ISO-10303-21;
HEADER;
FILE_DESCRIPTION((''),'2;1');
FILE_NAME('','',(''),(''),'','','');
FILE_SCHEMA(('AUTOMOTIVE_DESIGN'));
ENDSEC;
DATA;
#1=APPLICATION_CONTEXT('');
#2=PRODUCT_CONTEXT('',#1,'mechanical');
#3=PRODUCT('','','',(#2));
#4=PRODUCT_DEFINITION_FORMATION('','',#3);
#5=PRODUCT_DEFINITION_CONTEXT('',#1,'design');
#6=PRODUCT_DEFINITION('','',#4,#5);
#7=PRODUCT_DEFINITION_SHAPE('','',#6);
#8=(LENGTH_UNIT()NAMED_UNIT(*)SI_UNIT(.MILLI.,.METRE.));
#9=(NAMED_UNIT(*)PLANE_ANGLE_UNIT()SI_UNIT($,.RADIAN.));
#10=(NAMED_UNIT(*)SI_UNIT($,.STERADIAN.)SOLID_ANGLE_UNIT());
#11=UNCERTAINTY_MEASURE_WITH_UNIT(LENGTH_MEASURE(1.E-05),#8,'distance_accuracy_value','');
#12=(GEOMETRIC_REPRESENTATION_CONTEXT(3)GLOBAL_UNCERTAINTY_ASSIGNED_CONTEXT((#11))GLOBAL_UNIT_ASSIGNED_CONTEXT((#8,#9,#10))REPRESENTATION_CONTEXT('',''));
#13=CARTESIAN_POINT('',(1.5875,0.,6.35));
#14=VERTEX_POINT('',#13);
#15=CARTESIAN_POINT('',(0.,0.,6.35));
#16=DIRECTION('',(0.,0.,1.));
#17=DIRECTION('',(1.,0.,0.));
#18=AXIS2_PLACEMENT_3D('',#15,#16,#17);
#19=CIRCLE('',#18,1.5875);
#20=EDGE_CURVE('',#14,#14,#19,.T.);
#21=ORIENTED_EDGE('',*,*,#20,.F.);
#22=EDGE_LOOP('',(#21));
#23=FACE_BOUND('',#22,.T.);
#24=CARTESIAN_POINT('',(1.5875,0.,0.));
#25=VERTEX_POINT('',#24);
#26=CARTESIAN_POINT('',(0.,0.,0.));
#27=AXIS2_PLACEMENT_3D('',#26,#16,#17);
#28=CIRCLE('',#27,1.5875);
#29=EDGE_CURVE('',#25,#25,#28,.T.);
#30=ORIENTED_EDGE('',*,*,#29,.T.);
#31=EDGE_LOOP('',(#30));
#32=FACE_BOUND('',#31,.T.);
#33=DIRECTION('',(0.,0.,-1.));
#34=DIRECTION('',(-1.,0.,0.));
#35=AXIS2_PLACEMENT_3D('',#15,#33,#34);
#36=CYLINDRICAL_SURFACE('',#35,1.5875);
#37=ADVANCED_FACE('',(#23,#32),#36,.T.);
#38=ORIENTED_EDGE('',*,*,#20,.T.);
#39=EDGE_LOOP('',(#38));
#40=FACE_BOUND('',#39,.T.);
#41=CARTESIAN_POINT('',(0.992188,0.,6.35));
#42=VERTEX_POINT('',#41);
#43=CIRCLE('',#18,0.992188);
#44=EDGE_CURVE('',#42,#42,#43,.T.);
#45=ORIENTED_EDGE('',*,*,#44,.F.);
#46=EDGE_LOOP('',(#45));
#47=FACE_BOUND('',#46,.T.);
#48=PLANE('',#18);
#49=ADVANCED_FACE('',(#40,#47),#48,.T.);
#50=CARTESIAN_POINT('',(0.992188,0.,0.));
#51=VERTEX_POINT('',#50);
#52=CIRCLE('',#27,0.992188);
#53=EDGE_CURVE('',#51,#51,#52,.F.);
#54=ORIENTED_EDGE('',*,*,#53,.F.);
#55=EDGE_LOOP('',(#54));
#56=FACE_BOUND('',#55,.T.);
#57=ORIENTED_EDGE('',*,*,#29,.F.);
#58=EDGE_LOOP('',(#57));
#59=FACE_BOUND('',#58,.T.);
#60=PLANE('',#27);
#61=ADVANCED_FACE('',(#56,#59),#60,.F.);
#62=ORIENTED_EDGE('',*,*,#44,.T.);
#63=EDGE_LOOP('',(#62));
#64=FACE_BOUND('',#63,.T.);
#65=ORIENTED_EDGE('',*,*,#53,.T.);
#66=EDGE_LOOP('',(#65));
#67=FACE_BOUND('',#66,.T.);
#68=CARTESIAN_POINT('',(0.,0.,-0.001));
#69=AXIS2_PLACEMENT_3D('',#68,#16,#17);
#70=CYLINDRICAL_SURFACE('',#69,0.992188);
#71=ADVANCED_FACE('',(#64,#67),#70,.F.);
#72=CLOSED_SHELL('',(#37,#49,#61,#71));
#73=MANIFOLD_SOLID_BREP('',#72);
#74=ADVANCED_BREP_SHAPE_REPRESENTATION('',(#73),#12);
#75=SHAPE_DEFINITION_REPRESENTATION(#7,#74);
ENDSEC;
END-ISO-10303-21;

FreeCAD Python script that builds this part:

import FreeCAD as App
import Part
import Sketcher
from FreeCAD import Vector
Q = App.Units.Quantity

doc = App.newDocument("Part")
body = doc.addObject("PartDesign::Body", "Body")

sketch1 = body.newObject("Sketcher::SketchObject", "Sketch")
sketch1.AttachmentSupport = (doc.getObject("XY_Plane"), [""])
sketch1.MapMode = "FlatFace"
sketch1.addGeometry(Part.Circle(Vector(0, 0, 0), Vector(0, 0, 1), 1.6), False)
sketch1.addConstraint([
    Sketcher.Constraint("Coincident", 0, 3, -1, 1),
    Sketcher.Constraint("Diameter", 0, Q("0.125 in")),
])
pad1 = body.newObject("PartDesign::Pad", "Pad")
pad1.Profile = sketch1
pad1.Length = Q("0.25 in")

sketch2 = body.newObject("Sketcher::SketchObject", "Sketch001")
sketch2.AttachmentSupport = (doc.getObject("XY_Plane"), [""])
sketch2.MapMode = "FlatFace"
sketch2.AttachmentOffset = App.Placement(Vector(0, 0, 0.25 * 25.4), App.Rotation())
sketch2.addGeometry(Part.Circle(Vector(0, 0, 0), Vector(0, 0, 1), 1), False)
sketch2.addConstraint([
    Sketcher.Constraint("Coincident", 0, 3, -1, 1),
    Sketcher.Constraint("Diameter", 0, Q("0.078125 in")),
])
pocket1 = body.newObject("PartDesign::Pocket", "Pocket")
pocket1.Profile = sketch2
pocket1.Type = "UpToFirst"

doc.recompute()
